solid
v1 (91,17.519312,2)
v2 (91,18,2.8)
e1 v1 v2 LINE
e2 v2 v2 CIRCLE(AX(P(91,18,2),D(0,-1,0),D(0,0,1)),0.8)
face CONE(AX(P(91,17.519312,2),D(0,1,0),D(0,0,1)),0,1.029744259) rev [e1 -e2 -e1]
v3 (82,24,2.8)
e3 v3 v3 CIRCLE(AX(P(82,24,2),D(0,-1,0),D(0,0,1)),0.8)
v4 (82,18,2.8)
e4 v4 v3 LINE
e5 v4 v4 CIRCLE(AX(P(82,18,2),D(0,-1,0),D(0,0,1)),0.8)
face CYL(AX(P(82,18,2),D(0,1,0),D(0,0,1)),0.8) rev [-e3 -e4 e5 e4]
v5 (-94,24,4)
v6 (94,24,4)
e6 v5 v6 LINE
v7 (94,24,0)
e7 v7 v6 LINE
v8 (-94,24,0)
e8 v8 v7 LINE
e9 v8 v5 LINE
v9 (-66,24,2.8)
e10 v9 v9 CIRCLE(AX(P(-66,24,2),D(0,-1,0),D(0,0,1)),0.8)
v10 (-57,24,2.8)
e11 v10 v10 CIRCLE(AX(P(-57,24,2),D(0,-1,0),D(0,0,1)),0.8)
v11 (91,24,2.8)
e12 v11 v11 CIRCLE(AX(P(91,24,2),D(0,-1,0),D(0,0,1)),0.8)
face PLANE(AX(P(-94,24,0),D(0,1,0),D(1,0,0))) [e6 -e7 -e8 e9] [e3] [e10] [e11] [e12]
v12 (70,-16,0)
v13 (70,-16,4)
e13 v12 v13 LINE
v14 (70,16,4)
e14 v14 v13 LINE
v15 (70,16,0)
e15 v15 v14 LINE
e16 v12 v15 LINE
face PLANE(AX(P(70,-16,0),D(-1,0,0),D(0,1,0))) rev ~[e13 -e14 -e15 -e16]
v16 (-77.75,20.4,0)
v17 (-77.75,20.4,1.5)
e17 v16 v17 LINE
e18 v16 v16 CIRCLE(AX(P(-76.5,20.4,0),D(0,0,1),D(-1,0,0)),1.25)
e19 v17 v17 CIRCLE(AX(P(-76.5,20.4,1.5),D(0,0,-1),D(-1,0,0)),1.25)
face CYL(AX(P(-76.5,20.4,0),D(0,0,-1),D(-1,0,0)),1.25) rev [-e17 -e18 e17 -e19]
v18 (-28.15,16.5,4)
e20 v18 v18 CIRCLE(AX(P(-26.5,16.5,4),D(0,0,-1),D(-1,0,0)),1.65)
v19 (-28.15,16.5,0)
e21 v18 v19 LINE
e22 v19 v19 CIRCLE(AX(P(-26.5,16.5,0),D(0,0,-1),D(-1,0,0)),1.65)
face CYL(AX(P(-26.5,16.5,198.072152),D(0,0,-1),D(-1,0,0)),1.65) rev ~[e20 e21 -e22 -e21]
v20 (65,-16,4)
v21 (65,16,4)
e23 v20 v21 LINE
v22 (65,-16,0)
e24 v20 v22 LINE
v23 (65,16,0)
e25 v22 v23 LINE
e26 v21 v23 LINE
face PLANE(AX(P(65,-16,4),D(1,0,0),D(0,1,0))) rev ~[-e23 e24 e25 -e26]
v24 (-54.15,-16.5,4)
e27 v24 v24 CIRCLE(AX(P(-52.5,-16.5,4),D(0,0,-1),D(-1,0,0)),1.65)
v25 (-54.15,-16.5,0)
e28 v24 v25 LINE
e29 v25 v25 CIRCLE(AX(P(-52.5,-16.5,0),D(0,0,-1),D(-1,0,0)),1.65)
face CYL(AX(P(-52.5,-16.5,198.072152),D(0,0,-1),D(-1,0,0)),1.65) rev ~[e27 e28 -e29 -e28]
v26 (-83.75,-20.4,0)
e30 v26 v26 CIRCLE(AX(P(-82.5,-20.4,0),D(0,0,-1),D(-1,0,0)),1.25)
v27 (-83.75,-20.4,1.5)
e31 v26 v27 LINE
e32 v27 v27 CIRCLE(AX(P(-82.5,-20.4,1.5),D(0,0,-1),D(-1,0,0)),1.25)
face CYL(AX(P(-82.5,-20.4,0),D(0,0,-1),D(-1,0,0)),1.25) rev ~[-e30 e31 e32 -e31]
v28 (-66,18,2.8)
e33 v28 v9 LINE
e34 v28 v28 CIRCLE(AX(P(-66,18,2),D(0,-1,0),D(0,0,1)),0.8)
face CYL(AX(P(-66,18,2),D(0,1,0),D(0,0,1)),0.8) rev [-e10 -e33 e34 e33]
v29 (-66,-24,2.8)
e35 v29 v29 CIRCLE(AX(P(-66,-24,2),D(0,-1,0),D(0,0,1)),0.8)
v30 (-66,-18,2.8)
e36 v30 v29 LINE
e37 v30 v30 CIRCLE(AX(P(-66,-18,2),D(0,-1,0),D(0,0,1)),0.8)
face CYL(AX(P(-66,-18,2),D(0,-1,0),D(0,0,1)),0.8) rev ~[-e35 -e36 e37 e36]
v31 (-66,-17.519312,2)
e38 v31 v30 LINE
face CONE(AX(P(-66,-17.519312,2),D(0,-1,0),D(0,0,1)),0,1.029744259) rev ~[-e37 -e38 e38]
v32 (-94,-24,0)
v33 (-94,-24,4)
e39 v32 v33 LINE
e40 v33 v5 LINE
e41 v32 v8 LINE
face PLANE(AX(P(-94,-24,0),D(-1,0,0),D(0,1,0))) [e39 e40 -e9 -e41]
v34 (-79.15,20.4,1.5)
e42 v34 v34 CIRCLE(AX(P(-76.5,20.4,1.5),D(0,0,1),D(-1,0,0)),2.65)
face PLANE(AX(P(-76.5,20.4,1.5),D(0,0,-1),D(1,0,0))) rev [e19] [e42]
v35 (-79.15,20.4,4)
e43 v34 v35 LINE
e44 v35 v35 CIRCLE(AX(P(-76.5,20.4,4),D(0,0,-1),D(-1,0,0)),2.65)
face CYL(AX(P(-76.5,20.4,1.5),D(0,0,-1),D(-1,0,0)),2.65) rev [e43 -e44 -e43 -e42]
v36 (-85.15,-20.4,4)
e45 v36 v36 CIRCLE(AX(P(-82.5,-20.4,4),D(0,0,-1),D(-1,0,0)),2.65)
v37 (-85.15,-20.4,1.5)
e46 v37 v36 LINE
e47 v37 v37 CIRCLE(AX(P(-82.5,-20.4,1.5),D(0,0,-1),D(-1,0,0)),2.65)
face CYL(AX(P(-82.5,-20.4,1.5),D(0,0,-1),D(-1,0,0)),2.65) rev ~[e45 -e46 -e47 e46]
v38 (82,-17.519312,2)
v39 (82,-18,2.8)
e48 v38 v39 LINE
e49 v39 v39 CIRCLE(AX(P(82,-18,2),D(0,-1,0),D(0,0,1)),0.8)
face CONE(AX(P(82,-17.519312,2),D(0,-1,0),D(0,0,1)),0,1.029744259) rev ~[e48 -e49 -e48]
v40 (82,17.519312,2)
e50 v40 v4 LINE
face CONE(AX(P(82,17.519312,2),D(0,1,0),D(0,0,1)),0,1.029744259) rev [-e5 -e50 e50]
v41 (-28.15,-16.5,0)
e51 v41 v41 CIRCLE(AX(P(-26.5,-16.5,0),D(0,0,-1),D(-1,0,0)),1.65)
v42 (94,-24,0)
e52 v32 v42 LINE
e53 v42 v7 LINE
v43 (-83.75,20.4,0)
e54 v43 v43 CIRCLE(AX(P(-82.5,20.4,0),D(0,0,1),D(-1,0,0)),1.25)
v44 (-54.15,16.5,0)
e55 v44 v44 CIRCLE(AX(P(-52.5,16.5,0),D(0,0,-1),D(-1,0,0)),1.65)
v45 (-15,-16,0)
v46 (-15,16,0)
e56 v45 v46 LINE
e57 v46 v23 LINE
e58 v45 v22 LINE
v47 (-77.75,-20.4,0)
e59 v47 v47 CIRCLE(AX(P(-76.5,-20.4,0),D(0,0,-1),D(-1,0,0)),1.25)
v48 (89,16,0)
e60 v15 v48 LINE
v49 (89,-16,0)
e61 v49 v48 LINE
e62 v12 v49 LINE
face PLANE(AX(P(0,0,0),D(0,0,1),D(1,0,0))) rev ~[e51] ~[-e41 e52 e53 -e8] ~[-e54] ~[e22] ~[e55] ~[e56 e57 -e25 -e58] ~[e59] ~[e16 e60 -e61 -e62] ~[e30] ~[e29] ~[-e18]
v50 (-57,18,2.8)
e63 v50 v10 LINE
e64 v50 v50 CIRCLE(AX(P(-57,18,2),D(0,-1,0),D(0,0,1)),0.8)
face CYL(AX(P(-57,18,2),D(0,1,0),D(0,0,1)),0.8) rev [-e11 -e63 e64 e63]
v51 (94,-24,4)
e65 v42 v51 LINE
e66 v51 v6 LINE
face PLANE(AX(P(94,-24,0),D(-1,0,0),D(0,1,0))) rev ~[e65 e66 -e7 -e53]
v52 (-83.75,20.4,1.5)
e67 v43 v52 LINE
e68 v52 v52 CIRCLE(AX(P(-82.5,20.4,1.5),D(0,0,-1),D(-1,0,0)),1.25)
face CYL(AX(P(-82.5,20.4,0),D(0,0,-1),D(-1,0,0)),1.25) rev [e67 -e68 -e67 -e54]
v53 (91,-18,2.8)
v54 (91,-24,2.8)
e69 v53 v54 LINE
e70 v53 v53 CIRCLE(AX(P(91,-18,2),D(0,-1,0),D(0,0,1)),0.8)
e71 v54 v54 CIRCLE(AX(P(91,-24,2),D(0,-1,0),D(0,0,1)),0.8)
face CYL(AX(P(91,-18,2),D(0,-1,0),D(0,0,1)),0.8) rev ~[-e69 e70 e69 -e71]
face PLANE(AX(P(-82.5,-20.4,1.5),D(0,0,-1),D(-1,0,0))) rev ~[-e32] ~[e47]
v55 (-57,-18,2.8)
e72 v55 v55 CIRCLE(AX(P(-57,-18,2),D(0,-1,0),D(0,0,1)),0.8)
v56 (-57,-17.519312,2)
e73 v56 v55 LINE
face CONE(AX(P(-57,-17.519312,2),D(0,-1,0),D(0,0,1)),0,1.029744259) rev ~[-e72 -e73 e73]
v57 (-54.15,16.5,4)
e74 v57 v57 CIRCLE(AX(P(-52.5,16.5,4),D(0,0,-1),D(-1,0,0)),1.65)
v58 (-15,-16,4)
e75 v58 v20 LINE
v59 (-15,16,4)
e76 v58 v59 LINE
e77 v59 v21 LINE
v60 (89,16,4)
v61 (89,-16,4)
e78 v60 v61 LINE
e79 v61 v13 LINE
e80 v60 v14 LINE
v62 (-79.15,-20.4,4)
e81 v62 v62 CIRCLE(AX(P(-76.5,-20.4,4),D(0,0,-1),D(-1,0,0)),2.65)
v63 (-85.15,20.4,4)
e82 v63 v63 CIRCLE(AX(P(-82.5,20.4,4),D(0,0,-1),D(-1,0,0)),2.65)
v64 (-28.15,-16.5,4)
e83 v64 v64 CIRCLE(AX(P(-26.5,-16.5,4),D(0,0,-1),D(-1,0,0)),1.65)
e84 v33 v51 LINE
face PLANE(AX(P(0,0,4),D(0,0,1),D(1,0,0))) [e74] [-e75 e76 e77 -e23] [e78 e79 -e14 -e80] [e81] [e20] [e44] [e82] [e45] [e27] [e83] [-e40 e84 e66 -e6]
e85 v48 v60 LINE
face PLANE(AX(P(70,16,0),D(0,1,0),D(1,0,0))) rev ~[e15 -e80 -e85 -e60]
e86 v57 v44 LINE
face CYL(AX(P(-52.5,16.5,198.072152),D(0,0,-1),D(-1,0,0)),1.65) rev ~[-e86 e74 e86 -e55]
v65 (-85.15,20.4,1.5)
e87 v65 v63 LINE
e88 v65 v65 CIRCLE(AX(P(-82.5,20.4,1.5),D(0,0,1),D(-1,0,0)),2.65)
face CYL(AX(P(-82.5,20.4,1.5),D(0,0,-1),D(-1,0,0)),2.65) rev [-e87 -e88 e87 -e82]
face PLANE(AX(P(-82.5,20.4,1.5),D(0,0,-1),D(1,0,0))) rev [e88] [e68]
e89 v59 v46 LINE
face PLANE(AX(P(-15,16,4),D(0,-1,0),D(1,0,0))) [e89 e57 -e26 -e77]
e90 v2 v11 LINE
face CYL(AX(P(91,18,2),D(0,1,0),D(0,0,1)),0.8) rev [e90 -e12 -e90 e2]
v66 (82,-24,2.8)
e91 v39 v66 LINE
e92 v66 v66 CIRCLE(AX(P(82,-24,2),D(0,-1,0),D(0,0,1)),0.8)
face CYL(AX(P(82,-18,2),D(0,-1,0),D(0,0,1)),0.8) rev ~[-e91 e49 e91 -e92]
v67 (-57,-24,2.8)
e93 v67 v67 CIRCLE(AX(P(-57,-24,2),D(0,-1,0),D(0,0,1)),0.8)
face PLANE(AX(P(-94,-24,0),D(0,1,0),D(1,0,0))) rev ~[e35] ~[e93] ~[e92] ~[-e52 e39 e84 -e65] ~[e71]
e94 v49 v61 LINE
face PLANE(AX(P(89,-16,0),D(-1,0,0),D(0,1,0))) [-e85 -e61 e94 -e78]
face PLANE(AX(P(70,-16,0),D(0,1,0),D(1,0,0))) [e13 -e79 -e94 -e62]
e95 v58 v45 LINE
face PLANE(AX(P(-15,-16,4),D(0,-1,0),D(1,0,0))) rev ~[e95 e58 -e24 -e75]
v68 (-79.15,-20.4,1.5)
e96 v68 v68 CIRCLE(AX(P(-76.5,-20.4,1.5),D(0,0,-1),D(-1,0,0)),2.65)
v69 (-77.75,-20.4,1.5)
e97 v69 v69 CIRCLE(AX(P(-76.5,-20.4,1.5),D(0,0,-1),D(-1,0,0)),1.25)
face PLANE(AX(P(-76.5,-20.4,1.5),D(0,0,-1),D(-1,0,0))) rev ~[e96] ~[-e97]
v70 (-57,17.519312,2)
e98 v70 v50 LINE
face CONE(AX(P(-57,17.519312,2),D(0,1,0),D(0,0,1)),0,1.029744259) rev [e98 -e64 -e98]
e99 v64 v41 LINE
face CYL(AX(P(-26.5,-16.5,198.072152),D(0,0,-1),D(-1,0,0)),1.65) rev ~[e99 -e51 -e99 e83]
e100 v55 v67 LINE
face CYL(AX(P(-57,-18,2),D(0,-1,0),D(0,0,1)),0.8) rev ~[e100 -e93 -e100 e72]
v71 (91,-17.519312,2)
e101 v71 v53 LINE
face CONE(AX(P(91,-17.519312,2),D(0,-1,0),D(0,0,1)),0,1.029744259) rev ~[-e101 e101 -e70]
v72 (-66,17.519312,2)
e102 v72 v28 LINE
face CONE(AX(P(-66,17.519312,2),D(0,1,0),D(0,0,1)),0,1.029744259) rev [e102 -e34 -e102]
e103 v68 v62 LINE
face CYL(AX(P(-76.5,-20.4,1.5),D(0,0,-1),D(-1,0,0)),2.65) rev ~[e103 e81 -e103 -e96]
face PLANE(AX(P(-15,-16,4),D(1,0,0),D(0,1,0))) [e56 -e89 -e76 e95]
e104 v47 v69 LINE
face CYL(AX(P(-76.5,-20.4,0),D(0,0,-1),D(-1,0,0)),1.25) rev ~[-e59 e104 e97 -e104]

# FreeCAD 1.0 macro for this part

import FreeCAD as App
import Part
import Sketcher

V = App.Vector
Q = App.Units.Quantity

doc = App.newDocument("Part")
body = doc.addObject("PartDesign::Body", "Body")

sketch1 = body.newObject("Sketcher::SketchObject", "Sketch")
sketch1.AttachmentSupport = (doc.getObject("XY_Plane"), [""])
sketch1.MapMode = "FlatFace"
sketch1.addGeometry([
    Part.LineSegment(V(-94, 24, 0), V(-94, -24, 0)),
    Part.LineSegment(V(-94, -24, 0), V(94, -24, 0)),
    Part.LineSegment(V(94, -24, 0), V(94, 24, 0)),
    Part.LineSegment(V(94, 24, 0), V(-94, 24, 0)),
], False)
sketch1.addConstraint([
    Sketcher.Constraint("Coincident", 0, 2, 1, 1),
    Sketcher.Constraint("Coincident", 1, 2, 2, 1),
    Sketcher.Constraint("Coincident", 2, 2, 3, 1),
    Sketcher.Constraint("Coincident", 3, 2, 0, 1),
    Sketcher.Constraint("Vertical", 0),
    Sketcher.Constraint("Horizontal", 1),
    Sketcher.Constraint("Vertical", 2),
    Sketcher.Constraint("Horizontal", 3),
    Sketcher.Constraint("Symmetric", 0, 2, 2, 2, -1, 1),
    Sketcher.Constraint("DistanceX", 1, 1, 1, 2, Q("188 mm")),
    Sketcher.Constraint("DistanceY", 0, 2, 0, 1, Q("48 mm")),
])
pad1 = body.newObject("PartDesign::Pad", "Pad")
pad1.Profile = sketch1
pad1.Length = 4

sketch2 = body.newObject("Sketcher::SketchObject", "Sketch001")
sketch2.AttachmentSupport = (doc.getObject("XY_Plane"), [""])
sketch2.MapMode = "FlatFace"
sketch2.addGeometry([
    Part.Circle(V(-76.5, -20.4, 0), V(0, 0, 1), 1.2),
    Part.Circle(V(-82.5, -20.4, 0), V(0, 0, 1), 1.2),
], False)
sketch2.addConstraint([
    Sketcher.Constraint("Equal", 0, 1),
    Sketcher.Constraint("Horizontal", 0, 3, 1, 3),
    Sketcher.Constraint("Diameter", 0, Q("2.5 mm")),
    Sketcher.Constraint("DistanceX", 1, 3, 0, 3, Q("6 mm")),
    Sketcher.Constraint("DistanceX", 0, 3, -1, 1, Q("76.5 mm")),
    Sketcher.Constraint("DistanceY", 0, 3, -1, 1, Q("20.4 mm")),
])
pocket1 = body.newObject("PartDesign::Pocket", "Pocket")
pocket1.Profile = sketch2
pocket1.Length = 4
pocket1.Reversed = True

sketch3 = body.newObject("Sketcher::SketchObject", "Sketch002")
sketch3.AttachmentSupport = (doc.getObject("XY_Plane"), [""])
sketch3.MapMode = "FlatFace"
sketch3.AttachmentOffset = App.Placement(V(0, 0, 1.5), App.Rotation())
sketch3.addGeometry([
    Part.Circle(V(-76.5, -20.4, 0), V(0, 0, 1), 2.6),
    Part.Circle(V(-82.5, -20.4, 0), V(0, 0, 1), 2.6),
], False)
sketch3.addConstraint([
    Sketcher.Constraint("Equal", 0, 1),
    Sketcher.Constraint("Horizontal", 0, 3, 1, 3),
    Sketcher.Constraint("Diameter", 0, Q("5.3 mm")),
    Sketcher.Constraint("DistanceX", 1, 3, 0, 3, Q("6 mm")),
    Sketcher.Constraint("DistanceX", 0, 3, -1, 1, Q("76.5 mm")),
    Sketcher.Constraint("DistanceY", 0, 3, -1, 1, Q("20.4 mm")),
])
pocket2 = body.newObject("PartDesign::Pocket", "Pocket001")
pocket2.Profile = sketch3
pocket2.Length = 10
pocket2.Reversed = True
doc.recompute()

mirrored = body.newObject("PartDesign::Mirrored", "Mirrored")
mirrored.Originals = [pocket1, pocket2]
mirrored.MirrorPlane = (doc.getObject("XZ_Plane"), [""])
body.Tip = mirrored

sketch4 = body.newObject("Sketcher::SketchObject", "Sketch003")
sketch4.AttachmentSupport = (doc.getObject("YZ_Plane"), [""])
sketch4.MapMode = "FlatFace"
sketch4.AttachmentOffset = App.Placement(V(0, 0, -66), App.Rotation())
sketch4.addGeometry([
    Part.LineSegment(V(17.5, 2, 0), V(24, 2, 0)),
    Part.LineSegment(V(24, 2, 0), V(24, 2.8, 0)),
    Part.LineSegment(V(24, 2.8, 0), V(18, 2.8, 0)),
    Part.LineSegment(V(18, 2.8, 0), V(17.5, 2, 0)),
], False)
sketch4.addGeometry(Part.LineSegment(V(24, 2, 0), V(17.5, 2, 0)), True)
sketch4.addConstraint([
    Sketcher.Constraint("Coincident", 0, 2, 1, 1),
    Sketcher.Constraint("Coincident", 1, 2, 2, 1),
    Sketcher.Constraint("Coincident", 2, 2, 3, 1),
    Sketcher.Constraint("Coincident", 3, 2, 0, 1),
    Sketcher.Constraint("Horizontal", 0),
    Sketcher.Constraint("Vertical", 1),
    Sketcher.Constraint("Horizontal", 2),
    Sketcher.Constraint("Horizontal", 4),
    Sketcher.Constraint("Coincident", 4, 1, 0, 2),
    Sketcher.Constraint("Equal", 0, 4),
    Sketcher.Constraint("DistanceX", 2, 2, 2, 1, Q("6 mm")),
    Sketcher.Constraint("Angle", 3, Q("-121 deg")),
    Sketcher.Constraint("DistanceY", 1, 1, 1, 2, Q("0.8 mm")),
    Sketcher.Constraint("DistanceX", -1, 1, 0, 2, Q("24 mm")),
    Sketcher.Constraint("DistanceY", -1, 1, 0, 2, Q("2 mm")),
])
groove = body.newObject("PartDesign::Groove", "Groove")
groove.Profile = sketch4
groove.ReferenceAxis = (sketch4, ["Axis0"])
groove.Angle = 360
doc.recompute()

linearpattern = body.newObject("PartDesign::LinearPattern", "LinearPattern")
linearpattern.Originals = [groove]
linearpattern.Direction = (doc.getObject("X_Axis"), [""])
linearpattern.Mode = "offset"
linearpattern.Offset = 9
linearpattern.Occurrences = 2
body.Tip = linearpattern
doc.recompute()

linearpattern2 = body.newObject("PartDesign::LinearPattern", "LinearPattern001")
linearpattern2.Originals = [groove]
linearpattern2.Direction = (doc.getObject("X_Axis"), [""])
linearpattern2.Mode = "offset"
linearpattern2.Offset = 148
linearpattern2.Occurrences = 2
body.Tip = linearpattern2
doc.recompute()

linearpattern3 = body.newObject("PartDesign::LinearPattern", "LinearPattern002")
linearpattern3.Originals = [groove]
linearpattern3.Direction = (doc.getObject("X_Axis"), [""])
linearpattern3.Mode = "offset"
linearpattern3.Offset = 157
linearpattern3.Occurrences = 2
body.Tip = linearpattern3
doc.recompute()

mirrored2 = body.newObject("PartDesign::Mirrored", "Mirrored001")
mirrored2.Originals = [groove]
mirrored2.MirrorPlane = (doc.getObject("XZ_Plane"), [""])
body.Tip = mirrored2

sketch5 = body.newObject("Sketcher::SketchObject", "Sketch004")
sketch5.AttachmentSupport = (doc.getObject("YZ_Plane"), [""])
sketch5.MapMode = "FlatFace"
sketch5.AttachmentOffset = App.Placement(V(0, 0, -57), App.Rotation())
sketch5.addGeometry([
    Part.LineSegment(V(-24, 2, 0), V(-17.5, 2, 0)),
    Part.LineSegment(V(-17.5, 2, 0), V(-18, 2.8, 0)),
    Part.LineSegment(V(-18, 2.8, 0), V(-24, 2.8, 0)),
    Part.LineSegment(V(-24, 2.8, 0), V(-24, 2, 0)),
], False)
sketch5.addGeometry(Part.LineSegment(V(-17.5, 2, 0), V(-24, 2, 0)), True)
sketch5.addConstraint([
    Sketcher.Constraint("Coincident", 0, 2, 1, 1),
    Sketcher.Constraint("Coincident", 1, 2, 2, 1),
    Sketcher.Constraint("Coincident", 2, 2, 3, 1),
    Sketcher.Constraint("Coincident", 3, 2, 0, 1),
    Sketcher.Constraint("Horizontal", 0),
    Sketcher.Constraint("Horizontal", 2),
    Sketcher.Constraint("Vertical", 3),
    Sketcher.Constraint("Horizontal", 4),
    Sketcher.Constraint("Coincident", 4, 1, 0, 2),
    Sketcher.Constraint("Vertical", 2, 2, 4, 2),
    Sketcher.Constraint("DistanceX", 2, 2, 2, 1, Q("6 mm")),
    Sketcher.Constraint("Angle", 1, Q("121 deg")),
    Sketcher.Constraint("DistanceY", 3, 2, 3, 1, Q("0.8 mm")),
    Sketcher.Constraint("DistanceY", -1, 1, 0, 2, Q("2 mm")),
    Sketcher.Constraint("DistanceX", 1, 2, -1, 1, Q("18 mm")),
])
groove2 = body.newObject("PartDesign::Groove", "Groove001")
groove2.Profile = sketch5
groove2.ReferenceAxis = (sketch5, ["Axis0"])
groove2.Angle = 360

sketch6 = body.newObject("Sketcher::SketchObject", "Sketch005")
sketch6.AttachmentSupport = (doc.getObject("YZ_Plane"), [""])
sketch6.MapMode = "FlatFace"
sketch6.AttachmentOffset = App.Placement(V(0, 0, 82), App.Rotation())
sketch6.addGeometry([
    Part.LineSegment(V(-24, 2, 0), V(-17.5, 2, 0)),
    Part.LineSegment(V(-17.5, 2, 0), V(-18, 2.8, 0)),
    Part.LineSegment(V(-18, 2.8, 0), V(-24, 2.8, 0)),
    Part.LineSegment(V(-24, 2.8, 0), V(-24, 2, 0)),
], False)
sketch6.addGeometry(Part.LineSegment(V(-17.5, 2, 0), V(-24, 2, 0)), True)
sketch6.addConstraint([
    Sketcher.Constraint("Coincident", 0, 2, 1, 1),
    Sketcher.Constraint("Coincident", 1, 2, 2, 1),
    Sketcher.Constraint("Coincident", 2, 2, 3, 1),
    Sketcher.Constraint("Coincident", 3, 2, 0, 1),
    Sketcher.Constraint("Horizontal", 0),
    Sketcher.Constraint("Horizontal", 2),
    Sketcher.Constraint("Vertical", 3),
    Sketcher.Constraint("Horizontal", 4),
    Sketcher.Constraint("Coincident", 4, 1, 0, 2),
    Sketcher.Constraint("Vertical", 2, 2, 4, 2),
    Sketcher.Constraint("DistanceX", 2, 2, 2, 1, Q("6 mm")),
    Sketcher.Constraint("Angle", 1, Q("121 deg")),
    Sketcher.Constraint("DistanceY", 3, 2, 3, 1, Q("0.8 mm")),
    Sketcher.Constraint("DistanceY", -1, 1, 0, 2, Q("2 mm")),
    Sketcher.Constraint("DistanceX", 1, 2, -1, 1, Q("18 mm")),
])
groove3 = body.newObject("PartDesign::Groove", "Groove002")
groove3.Profile = sketch6
groove3.ReferenceAxis = (sketch6, ["Axis0"])
groove3.Angle = 360

sketch7 = body.newObject("Sketcher::SketchObject", "Sketch006")
sketch7.AttachmentSupport = (doc.getObject("YZ_Plane"), [""])
sketch7.MapMode = "FlatFace"
sketch7.AttachmentOffset = App.Placement(V(0, 0, 91), App.Rotation())
sketch7.addGeometry([
    Part.LineSegment(V(-24, 2, 0), V(-17.5, 2, 0)),
    Part.LineSegment(V(-17.5, 2, 0), V(-18, 2.8, 0)),
    Part.LineSegment(V(-18, 2.8, 0), V(-24, 2.8, 0)),
    Part.LineSegment(V(-24, 2.8, 0), V(-24, 2, 0)),
], False)
sketch7.addGeometry(Part.LineSegment(V(-17.5, 2, 0), V(-24, 2, 0)), True)
sketch7.addConstraint([
    Sketcher.Constraint("Coincident", 0, 2, 1, 1),
    Sketcher.Constraint("Coincident", 1, 2, 2, 1),
    Sketcher.Constraint("Coincident", 2, 2, 3, 1),
    Sketcher.Constraint("Coincident", 3, 2, 0, 1),
    Sketcher.Constraint("Horizontal", 0),
    Sketcher.Constraint("Horizontal", 2),
    Sketcher.Constraint("Vertical", 3),
    Sketcher.Constraint("Horizontal", 4),
    Sketcher.Constraint("Coincident", 4, 1, 0, 2),
    Sketcher.Constraint("Vertical", 2, 2, 4, 2),
    Sketcher.Constraint("DistanceX", 2, 2, 2, 1, Q("6 mm")),
    Sketcher.Constraint("Angle", 1, Q("121 deg")),
    Sketcher.Constraint("DistanceY", 3, 2, 3, 1, Q("0.8 mm")),
    Sketcher.Constraint("DistanceY", -1, 1, 0, 2, Q("2 mm")),
    Sketcher.Constraint("DistanceX", 1, 2, -1, 1, Q("18 mm")),
])
groove4 = body.newObject("PartDesign::Groove", "Groove003")
groove4.Profile = sketch7
groove4.ReferenceAxis = (sketch7, ["Axis0"])
groove4.Angle = 360

sketch8 = body.newObject("Sketcher::SketchObject", "Sketch007")
sketch8.AttachmentSupport = (doc.getObject("XY_Plane"), [""])
sketch8.MapMode = "FlatFace"
sketch8.AttachmentOffset = App.Placement(V(0, 0, 4), App.Rotation())
sketch8.addGeometry([
    Part.LineSegment(V(70, 16, 0), V(70, -16, 0)),
    Part.LineSegment(V(70, -16, 0), V(89, -16, 0)),
    Part.LineSegment(V(89, -16, 0), V(89, 16, 0)),
    Part.LineSegment(V(89, 16, 0), V(70, 16, 0)),
], False)
sketch8.addConstraint([
    Sketcher.Constraint("Coincident", 0, 2, 1, 1),
    Sketcher.Constraint("Coincident", 1, 2, 2, 1),
    Sketcher.Constraint("Coincident", 2, 2, 3, 1),
    Sketcher.Constraint("Coincident", 3, 2, 0, 1),
    Sketcher.Constraint("Vertical", 0),
    Sketcher.Constraint("Horizontal", 1),
    Sketcher.Constraint("Vertical", 2),
    Sketcher.Constraint("Horizontal", 3),
    Sketcher.Constraint("DistanceX", 1, 1, 1, 2, Q("19 mm")),
    Sketcher.Constraint("DistanceY", 0, 2, 0, 1, Q("32 mm")),
    Sketcher.Constraint("DistanceX", -1, 1, 0, 2, Q("70 mm")),
    Sketcher.Constraint("DistanceY", 0, 2, -1, 1, Q("16 mm")),
])
pocket3 = body.newObject("PartDesign::Pocket", "Pocket002")
pocket3.Profile = sketch8
pocket3.Type = "ThroughAll"
pocket3.Midplane = True

sketch9 = body.newObject("Sketcher::SketchObject", "Sketch008")
sketch9.AttachmentSupport = (doc.getObject("XY_Plane"), [""])
sketch9.MapMode = "FlatFace"
sketch9.AttachmentOffset = App.Placement(V(0, 0, 4), App.Rotation())
sketch9.addGeometry([
    Part.LineSegment(V(-15, 16, 0), V(-15, -16, 0)),
    Part.LineSegment(V(-15, -16, 0), V(65, -16, 0)),
    Part.LineSegment(V(65, -16, 0), V(65, 16, 0)),
    Part.LineSegment(V(65, 16, 0), V(-15, 16, 0)),
], False)
sketch9.addConstraint([
    Sketcher.Constraint("Coincident", 0, 2, 1, 1),
    Sketcher.Constraint("Coincident", 1, 2, 2, 1),
    Sketcher.Constraint("Coincident", 2, 2, 3, 1),
    Sketcher.Constraint("Coincident", 3, 2, 0, 1),
    Sketcher.Constraint("Vertical", 0),
    Sketcher.Constraint("Horizontal", 1),
    Sketcher.Constraint("Vertical", 2),
    Sketcher.Constraint("Horizontal", 3),
    Sketcher.Constraint("DistanceX", 1, 1, 1, 2, Q("80 mm")),
    Sketcher.Constraint("DistanceY", 0, 2, 0, 1, Q("32 mm")),
    Sketcher.Constraint("DistanceX", 0, 2, -1, 1, Q("15 mm")),
    Sketcher.Constraint("DistanceY", 0, 2, -1, 1, Q("16 mm")),
])
pocket4 = body.newObject("PartDesign::Pocket", "Pocket003")
pocket4.Profile = sketch9
pocket4.Length = 4

sketch10 = body.newObject("Sketcher::SketchObject", "Sketch009")
sketch10.AttachmentSupport = (doc.getObject("XY_Plane"), [""])
sketch10.MapMode = "FlatFace"
sketch10.AttachmentOffset = App.Placement(V(0, 0, 4), App.Rotation())
sketch10.addGeometry([
    Part.Circle(V(-52.5, 16.5, 0), V(0, 0, 1), 1.6),
    Part.Circle(V(-26.5, 16.5, 0), V(0, 0, 1), 1.6),
    Part.Circle(V(-26.5, -16.5, 0), V(0, 0, 1), 1.6),
    Part.Circle(V(-52.5, -16.5, 0), V(0, 0, 1), 1.6),
], False)
sketch10.addConstraint([
    Sketcher.Constraint("Equal", 0, 1),
    Sketcher.Constraint("Equal", 1, 2),
    Sketcher.Constraint("Equal", 2, 3),
    Sketcher.Constraint("Symmetric", 1, 3, 2, 3, -1),
    Sketcher.Constraint("Symmetric", 0, 3, 3, 3, -1),
    Sketcher.Constraint("Horizontal", 0, 3, 1, 3),
    Sketcher.Constraint("Diameter", 0, Q("3.3 mm")),
    Sketcher.Constraint("DistanceX", 0, 3, 1, 3, Q("26 mm")),
    Sketcher.Constraint("DistanceY", 2, 3, 1, 3, Q("33 mm")),
    Sketcher.Constraint("DistanceX", 0, 3, -1, 1, Q("52.5 mm")),
])
doc.recompute()
hole = body.newObject("PartDesign::Hole", "Hole")
hole.Profile = sketch10
hole.ThreadType = "None"
hole.Diameter = 3.3
hole.DepthType = "ThroughAll"

doc.recompute()
